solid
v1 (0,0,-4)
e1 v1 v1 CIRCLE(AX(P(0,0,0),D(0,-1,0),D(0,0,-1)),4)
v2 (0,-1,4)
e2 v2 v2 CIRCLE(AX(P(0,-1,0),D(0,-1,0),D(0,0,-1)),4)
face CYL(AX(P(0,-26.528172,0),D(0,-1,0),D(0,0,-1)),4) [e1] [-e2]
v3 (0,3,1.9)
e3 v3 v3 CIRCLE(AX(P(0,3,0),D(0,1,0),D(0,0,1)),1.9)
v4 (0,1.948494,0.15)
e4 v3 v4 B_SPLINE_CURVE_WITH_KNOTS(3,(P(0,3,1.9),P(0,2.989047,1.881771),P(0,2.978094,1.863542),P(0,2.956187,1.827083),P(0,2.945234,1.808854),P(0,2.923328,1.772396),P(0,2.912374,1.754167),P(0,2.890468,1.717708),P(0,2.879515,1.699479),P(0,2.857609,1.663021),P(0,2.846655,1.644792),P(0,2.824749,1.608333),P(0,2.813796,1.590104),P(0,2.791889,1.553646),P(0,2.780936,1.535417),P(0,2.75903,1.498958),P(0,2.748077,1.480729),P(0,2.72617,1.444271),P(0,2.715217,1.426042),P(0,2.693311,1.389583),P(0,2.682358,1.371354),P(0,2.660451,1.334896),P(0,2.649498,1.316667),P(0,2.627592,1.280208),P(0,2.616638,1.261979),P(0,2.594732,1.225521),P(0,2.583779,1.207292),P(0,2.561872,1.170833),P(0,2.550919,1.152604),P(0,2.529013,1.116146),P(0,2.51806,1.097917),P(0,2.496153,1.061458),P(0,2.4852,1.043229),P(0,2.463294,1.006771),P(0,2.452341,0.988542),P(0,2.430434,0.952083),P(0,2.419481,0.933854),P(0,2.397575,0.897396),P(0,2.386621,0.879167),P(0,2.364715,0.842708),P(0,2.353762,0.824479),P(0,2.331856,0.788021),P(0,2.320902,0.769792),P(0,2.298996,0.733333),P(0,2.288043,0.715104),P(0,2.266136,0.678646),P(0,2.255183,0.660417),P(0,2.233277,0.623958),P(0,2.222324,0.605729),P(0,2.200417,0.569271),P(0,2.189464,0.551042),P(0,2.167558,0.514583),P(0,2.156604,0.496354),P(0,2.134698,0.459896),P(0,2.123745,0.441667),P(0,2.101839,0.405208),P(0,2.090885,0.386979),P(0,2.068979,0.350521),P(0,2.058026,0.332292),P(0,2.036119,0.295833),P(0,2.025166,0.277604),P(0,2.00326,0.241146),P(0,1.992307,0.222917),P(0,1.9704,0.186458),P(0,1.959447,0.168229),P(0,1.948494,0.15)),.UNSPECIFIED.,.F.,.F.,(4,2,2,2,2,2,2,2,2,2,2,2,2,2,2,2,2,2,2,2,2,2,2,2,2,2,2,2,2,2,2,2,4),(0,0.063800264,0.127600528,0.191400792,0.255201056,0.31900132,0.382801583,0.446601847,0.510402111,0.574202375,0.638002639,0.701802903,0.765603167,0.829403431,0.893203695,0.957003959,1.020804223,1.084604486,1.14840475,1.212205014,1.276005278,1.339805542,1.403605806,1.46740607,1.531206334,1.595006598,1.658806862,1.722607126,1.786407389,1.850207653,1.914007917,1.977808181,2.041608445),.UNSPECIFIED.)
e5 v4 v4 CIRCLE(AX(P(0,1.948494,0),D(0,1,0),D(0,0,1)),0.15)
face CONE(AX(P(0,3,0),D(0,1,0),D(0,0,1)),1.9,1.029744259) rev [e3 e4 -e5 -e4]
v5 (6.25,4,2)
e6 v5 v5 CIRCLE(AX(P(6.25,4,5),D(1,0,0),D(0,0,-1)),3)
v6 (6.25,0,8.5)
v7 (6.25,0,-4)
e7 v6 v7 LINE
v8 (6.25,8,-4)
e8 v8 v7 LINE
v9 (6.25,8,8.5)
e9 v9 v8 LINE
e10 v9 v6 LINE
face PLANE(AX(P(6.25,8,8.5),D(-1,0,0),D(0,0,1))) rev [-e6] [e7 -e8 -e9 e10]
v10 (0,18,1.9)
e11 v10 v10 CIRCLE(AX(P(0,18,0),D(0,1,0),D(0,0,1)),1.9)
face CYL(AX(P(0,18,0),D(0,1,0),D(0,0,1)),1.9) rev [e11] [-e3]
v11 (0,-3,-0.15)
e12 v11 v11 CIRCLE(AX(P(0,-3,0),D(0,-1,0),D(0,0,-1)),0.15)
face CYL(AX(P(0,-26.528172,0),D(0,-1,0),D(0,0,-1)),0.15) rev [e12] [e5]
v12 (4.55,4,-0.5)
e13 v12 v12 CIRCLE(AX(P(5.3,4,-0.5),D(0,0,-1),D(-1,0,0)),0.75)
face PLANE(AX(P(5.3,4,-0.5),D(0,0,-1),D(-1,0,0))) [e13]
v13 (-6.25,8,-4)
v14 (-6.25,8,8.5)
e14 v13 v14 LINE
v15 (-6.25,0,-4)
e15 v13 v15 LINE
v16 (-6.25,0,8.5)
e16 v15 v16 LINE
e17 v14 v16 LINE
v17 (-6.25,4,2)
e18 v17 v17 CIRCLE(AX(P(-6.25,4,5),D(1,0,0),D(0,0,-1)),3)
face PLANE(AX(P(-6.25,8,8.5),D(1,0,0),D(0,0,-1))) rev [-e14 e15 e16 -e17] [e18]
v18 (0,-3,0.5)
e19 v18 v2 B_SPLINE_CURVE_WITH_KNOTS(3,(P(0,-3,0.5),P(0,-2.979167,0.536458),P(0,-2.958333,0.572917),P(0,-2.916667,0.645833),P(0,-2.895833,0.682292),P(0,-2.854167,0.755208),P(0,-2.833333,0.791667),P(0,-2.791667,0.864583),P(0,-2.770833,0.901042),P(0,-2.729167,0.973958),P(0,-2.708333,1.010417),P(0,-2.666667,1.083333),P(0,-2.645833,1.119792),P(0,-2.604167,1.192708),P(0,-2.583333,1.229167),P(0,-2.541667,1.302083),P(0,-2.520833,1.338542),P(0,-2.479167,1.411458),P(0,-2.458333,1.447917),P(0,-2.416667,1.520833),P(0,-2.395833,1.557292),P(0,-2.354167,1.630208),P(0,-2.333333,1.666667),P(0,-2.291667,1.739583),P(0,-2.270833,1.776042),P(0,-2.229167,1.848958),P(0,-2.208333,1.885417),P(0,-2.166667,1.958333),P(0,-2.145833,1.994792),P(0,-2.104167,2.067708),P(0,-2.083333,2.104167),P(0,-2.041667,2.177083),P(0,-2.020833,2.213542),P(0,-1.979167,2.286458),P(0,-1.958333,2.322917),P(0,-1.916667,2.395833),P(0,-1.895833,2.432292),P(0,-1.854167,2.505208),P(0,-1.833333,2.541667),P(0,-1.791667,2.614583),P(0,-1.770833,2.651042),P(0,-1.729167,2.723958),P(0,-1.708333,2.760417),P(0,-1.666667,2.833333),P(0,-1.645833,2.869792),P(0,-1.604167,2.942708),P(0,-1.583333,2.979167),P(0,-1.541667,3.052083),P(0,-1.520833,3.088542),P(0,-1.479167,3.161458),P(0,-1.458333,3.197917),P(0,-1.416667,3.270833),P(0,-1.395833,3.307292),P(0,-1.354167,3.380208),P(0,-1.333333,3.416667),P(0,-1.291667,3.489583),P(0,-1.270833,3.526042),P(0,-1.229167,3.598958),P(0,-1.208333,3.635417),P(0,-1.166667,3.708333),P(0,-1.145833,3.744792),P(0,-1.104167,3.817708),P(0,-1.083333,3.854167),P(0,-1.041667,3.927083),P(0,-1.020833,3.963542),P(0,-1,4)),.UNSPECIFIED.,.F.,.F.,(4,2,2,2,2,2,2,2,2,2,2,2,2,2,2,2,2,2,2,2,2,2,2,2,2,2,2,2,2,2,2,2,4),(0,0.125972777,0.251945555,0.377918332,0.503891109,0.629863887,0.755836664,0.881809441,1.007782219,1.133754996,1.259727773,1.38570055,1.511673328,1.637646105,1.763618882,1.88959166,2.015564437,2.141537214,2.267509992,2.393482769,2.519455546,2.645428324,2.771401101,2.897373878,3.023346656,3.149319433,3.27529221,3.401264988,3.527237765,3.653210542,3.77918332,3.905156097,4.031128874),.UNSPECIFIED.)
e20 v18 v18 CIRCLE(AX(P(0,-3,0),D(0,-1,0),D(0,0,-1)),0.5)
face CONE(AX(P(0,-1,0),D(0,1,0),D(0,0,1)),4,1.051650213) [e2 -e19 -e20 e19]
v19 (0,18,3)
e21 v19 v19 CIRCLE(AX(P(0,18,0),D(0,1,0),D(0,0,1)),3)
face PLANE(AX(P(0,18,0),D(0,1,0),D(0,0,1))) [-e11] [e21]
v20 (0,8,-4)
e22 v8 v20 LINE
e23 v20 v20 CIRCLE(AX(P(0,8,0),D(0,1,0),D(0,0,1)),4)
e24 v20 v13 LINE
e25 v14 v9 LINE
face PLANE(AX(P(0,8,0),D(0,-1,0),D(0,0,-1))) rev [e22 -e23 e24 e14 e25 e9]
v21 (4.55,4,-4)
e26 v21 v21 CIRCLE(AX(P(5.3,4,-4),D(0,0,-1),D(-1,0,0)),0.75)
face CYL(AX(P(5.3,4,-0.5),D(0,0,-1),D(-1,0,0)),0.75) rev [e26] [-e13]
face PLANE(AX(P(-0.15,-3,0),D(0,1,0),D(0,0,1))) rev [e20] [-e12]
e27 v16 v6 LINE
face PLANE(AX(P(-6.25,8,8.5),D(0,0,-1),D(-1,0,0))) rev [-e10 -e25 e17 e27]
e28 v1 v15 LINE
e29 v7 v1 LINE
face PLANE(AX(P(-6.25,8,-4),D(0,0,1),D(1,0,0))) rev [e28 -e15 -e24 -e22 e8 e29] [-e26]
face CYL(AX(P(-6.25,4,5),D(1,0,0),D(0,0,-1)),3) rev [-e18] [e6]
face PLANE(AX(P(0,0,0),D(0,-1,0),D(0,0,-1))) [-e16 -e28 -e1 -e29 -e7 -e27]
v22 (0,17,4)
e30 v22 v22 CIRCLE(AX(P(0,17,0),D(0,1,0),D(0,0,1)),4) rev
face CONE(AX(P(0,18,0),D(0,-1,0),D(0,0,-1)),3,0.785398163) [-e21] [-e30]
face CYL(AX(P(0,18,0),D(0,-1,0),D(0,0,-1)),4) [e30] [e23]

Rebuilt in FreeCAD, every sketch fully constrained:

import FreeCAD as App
import Part
import Sketcher


def edges_at(feature, points):
    """Names of the edges that pass closest to the given points."""
    edges = feature.Shape.Edges
    near = lambda p: min(range(len(edges)), key=lambda i: edges[i].distToShape(Part.Vertex(*p))[0])
    return sorted({f"Edge{near(p) + 1}" for p in points})


def add_polygon(sketch, points):
    """Adds a closed chain of lines whose ends are joined by coincident constraints."""
    first, n = sketch.GeometryCount, len(points)
    for a, b in zip(points, points[1:] + points[:1]):
        sketch.addGeometry(Part.LineSegment(App.Vector(*a, 0), App.Vector(*b, 0)), False)
    for i in range(n):
        sketch.addConstraint(Sketcher.Constraint("Coincident", first + i, 2, first + (i + 1) % n, 1))

doc = App.newDocument("Part")
params = doc.addObject("Spreadsheet::Sheet", "Params")
for row, (alias, value) in enumerate([
    ("sketch1_height", "3 mm"),
    ("sketch1_height2", "1 mm"),
    ("sketch1_width", "3.85 mm"),
    ("sketch1_width2", "0.35 mm"),
    ("revolution_angle", "360 deg"),
    ("sketch2_diameter", "0.3 mm"),
    ("sketch2_width", "12.5 mm"),
    ("pad1_length", "8 mm"),
    ("sketch3_diameter", "6 mm"),
    ("sketch4_diameter", "1.5 mm"),
    ("pocket2_length", "3.5 mm"),
    ("sketch5_diameter", "8 mm"),
    ("pad2_length", "10 mm"),
    ("chamfer_size", "1 mm"),
    ("sketch6_diameter", "3.8 mm"),
    ("hole_diameter", "3.8 mm"),
    ("hole_depth", "15 mm"),
], start=1):
    params.set(f"A{row}", alias)
    params.set(f"B{row}", "=" + value)
    params.setAlias(f"B{row}", alias)

body = doc.addObject("PartDesign::Body", "Body")

# Sketch on XY plane
sketch1 = body.newObject("Sketcher::SketchObject", "Sketch")
sketch1.AttachmentSupport = (doc.getObject("XY_Plane"), [""])
sketch1.MapMode = "FlatFace"
add_polygon(sketch1, [(-0.15, -3), (-0.15, 0), (-4, 0), (-4, -1), (-0.5, -3)])  # lines 0-4
sketch1.addConstraint(Sketcher.Constraint("Vertical", 0))
sketch1.addConstraint(Sketcher.Constraint("Horizontal", 1))
sketch1.addConstraint(Sketcher.Constraint("Vertical", 2))
sketch1.addConstraint(Sketcher.Constraint("Horizontal", 4))
sketch1.addConstraint(Sketcher.Constraint("PointOnObject", 0, 2, -1))
sketch1.addConstraint(Sketcher.Constraint("DistanceY", 0, 1, 0, 2, 3.0))
sketch1.addConstraint(Sketcher.Constraint("DistanceY", 2, 2, 2, 1, 1.0))
sketch1.addConstraint(Sketcher.Constraint("DistanceX", 1, 2, -1, 1, 4.0))
sketch1.addConstraint(Sketcher.Constraint("DistanceX", 1, 2, 1, 1, 3.85))
sketch1.addConstraint(Sketcher.Constraint("DistanceX", 4, 1, 4, 2, 0.35))
sketch1.setExpression("Constraints[10]", "Params.sketch1_height")
sketch1.setExpression("Constraints[11]", "Params.sketch1_height2")
sketch1.setExpression("Constraints[13]", "Params.sketch1_width")
sketch1.setExpression("Constraints[14]", "Params.sketch1_width2")
revolution = body.newObject("PartDesign::Revolution", "Revolution")
revolution.Profile = sketch1
revolution.ReferenceAxis = (sketch1, ["V_Axis"])
revolution.setExpression("Angle", "Params.revolution_angle")

# Sketch on XZ plane
sketch2 = body.newObject("Sketcher::SketchObject", "Sketch001")
sketch2.AttachmentSupport = (doc.getObject("XZ_Plane"), [""])
sketch2.MapMode = "FlatFace"
add_polygon(sketch2, [(-6.25, -4), (-6.25, 8.5), (6.25, 8.5), (6.25, -4)])  # lines 0-3
sketch2.addGeometry(Part.Circle(App.Vector(0, 0, 0), App.Vector(0, 0, 1), 0.15), False)  # 4
sketch2.addConstraint(Sketcher.Constraint("Vertical", 0))
sketch2.addConstraint(Sketcher.Constraint("Horizontal", 1))
sketch2.addConstraint(Sketcher.Constraint("Vertical", 2))
sketch2.addConstraint(Sketcher.Constraint("Horizontal", 3))
sketch2.addConstraint(Sketcher.Constraint("Coincident", 4, 3, -1, 1))
sketch2.addConstraint(Sketcher.Constraint("Equal", 3, 0))
sketch2.addConstraint(Sketcher.Constraint("Diameter", 4, 0.3))
sketch2.addConstraint(Sketcher.Constraint("DistanceX", 1, 1, 1, 2, 12.5))
sketch2.addConstraint(Sketcher.Constraint("DistanceY", 2, 2, -1, 1, 4.0))
sketch2.addConstraint(Sketcher.Constraint("DistanceX", 0, 2, -1, 1, 6.25))
sketch2.setExpression("Constraints[10]", "Params.sketch2_diameter")
sketch2.setExpression("Constraints[11]", "Params.sketch2_width")
pad1 = body.newObject("PartDesign::Pad", "Pad")
pad1.Profile = sketch2
pad1.setExpression("Length", "Params.pad1_length")
pad1.Reversed = True

# Sketch on YZ plane
sketch3 = body.newObject("Sketcher::SketchObject", "Sketch002")
sketch3.AttachmentSupport = (doc.getObject("YZ_Plane"), [""])
sketch3.MapMode = "FlatFace"
sketch3.AttachmentOffset = App.Placement(App.Vector(0, 0, 6.25), App.Rotation())
sketch3.addGeometry(Part.Circle(App.Vector(4, 5, 0), App.Vector(0, 0, 1), 3), False)
sketch3.addConstraint(Sketcher.Constraint("Diameter", 0, 6.0))
sketch3.addConstraint(Sketcher.Constraint("DistanceX", -1, 1, 0, 3, 4.0))
sketch3.addConstraint(Sketcher.Constraint("DistanceY", -1, 1, 0, 3, 5.0))
sketch3.setExpression("Constraints[0]", "Params.sketch3_diameter")
pocket1 = body.newObject("PartDesign::Pocket", "Pocket")
pocket1.Profile = sketch3
pocket1.Type = "ThroughAll"

# Sketch on XY plane
sketch4 = body.newObject("Sketcher::SketchObject", "Sketch003")
sketch4.AttachmentSupport = (doc.getObject("XY_Plane"), [""])
sketch4.MapMode = "FlatFace"
sketch4.AttachmentOffset = App.Placement(App.Vector(0, 0, -4), App.Rotation())
sketch4.addGeometry(Part.Circle(App.Vector(5.3, 4, 0), App.Vector(0, 0, 1), 0.8), False)
sketch4.addConstraint(Sketcher.Constraint("Diameter", 0, 1.5))
sketch4.addConstraint(Sketcher.Constraint("DistanceY", -1, 1, 0, 3, 4.0))
sketch4.addConstraint(Sketcher.Constraint("DistanceX", -1, 1, 0, 3, 5.3))
sketch4.setExpression("Constraints[0]", "Params.sketch4_diameter")
pocket2 = body.newObject("PartDesign::Pocket", "Pocket001")
pocket2.Profile = sketch4
pocket2.setExpression("Length", "Params.pocket2_length")
pocket2.Reversed = True

# Sketch on XZ plane
sketch5 = body.newObject("Sketcher::SketchObject", "Sketch004")
sketch5.AttachmentSupport = (doc.getObject("XZ_Plane"), [""])
sketch5.MapMode = "FlatFace"
sketch5.AttachmentOffset = App.Placement(App.Vector(0, 0, -8), App.Rotation())
sketch5.addGeometry(Part.Circle(App.Vector(0, 0, 0), App.Vector(0, 0, 1), 4), False)
sketch5.addConstraint(Sketcher.Constraint("Coincident", 0, 3, -1, 1))
sketch5.addConstraint(Sketcher.Constraint("Diameter", 0, 8.0))
sketch5.setExpression("Constraints[1]", "Params.sketch5_diameter")
pad2 = body.newObject("PartDesign::Pad", "Pad001")
pad2.Profile = sketch5
pad2.setExpression("Length", "Params.pad2_length")
pad2.Reversed = True
doc.recompute()

chamfer = body.newObject("PartDesign::Chamfer", "Chamfer")
chamfer.Base = (pad2, edges_at(pad2, [(0, 18, 4)]))
chamfer.setExpression("Size", "Params.chamfer_size")

# Sketch on XZ plane
sketch6 = body.newObject("Sketcher::SketchObject", "Sketch005")
sketch6.AttachmentSupport = (doc.getObject("XZ_Plane"), [""])
sketch6.MapMode = "FlatFace"
sketch6.AttachmentOffset = App.Placement(App.Vector(0, 0, -18), App.Rotation())
sketch6.addGeometry(Part.Circle(App.Vector(0, 0, 0), App.Vector(0, 0, 1), 1.9), False)
sketch6.addConstraint(Sketcher.Constraint("Coincident", 0, 3, -1, 1))
sketch6.addConstraint(Sketcher.Constraint("Diameter", 0, 3.8))
sketch6.setExpression("Constraints[1]", "Params.sketch6_diameter")
doc.recompute()
hole = body.newObject("PartDesign::Hole", "Hole")
hole.Profile = sketch6
hole.ThreadType = "None"
hole.setExpression("Diameter", "Params.hole_diameter")
hole.DepthType = "Dimension"
hole.setExpression("Depth", "Params.hole_depth")
hole.DrillPoint = "Angled"
hole.DrillPointAngle = 118
hole.Reversed = True

doc.recompute()
